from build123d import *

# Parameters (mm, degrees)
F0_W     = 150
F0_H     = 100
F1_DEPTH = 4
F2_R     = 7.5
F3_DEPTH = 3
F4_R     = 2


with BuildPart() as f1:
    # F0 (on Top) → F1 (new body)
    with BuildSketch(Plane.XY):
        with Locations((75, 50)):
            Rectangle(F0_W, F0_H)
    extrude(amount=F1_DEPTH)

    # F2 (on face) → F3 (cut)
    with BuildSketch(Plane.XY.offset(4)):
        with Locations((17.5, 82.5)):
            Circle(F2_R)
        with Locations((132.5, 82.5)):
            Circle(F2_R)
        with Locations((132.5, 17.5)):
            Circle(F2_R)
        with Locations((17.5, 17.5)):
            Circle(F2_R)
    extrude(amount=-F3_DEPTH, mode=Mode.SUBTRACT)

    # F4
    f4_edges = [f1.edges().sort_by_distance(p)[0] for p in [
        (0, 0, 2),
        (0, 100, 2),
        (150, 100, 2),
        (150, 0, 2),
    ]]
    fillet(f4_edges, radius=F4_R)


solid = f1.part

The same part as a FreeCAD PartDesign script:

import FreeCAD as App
import Part
import Sketcher
from FreeCAD import Vector
Q = App.Units.Quantity


def edges_at(feature, points):
    """Names of the edges that pass closest to the given points."""
    edges = feature.Shape.Edges
    near = lambda p: min(range(len(edges)), key=lambda i: edges[i].distToShape(Part.Vertex(*p))[0])
    return sorted({f"Edge{near(p) + 1}" for p in points})


def add_polygon(sketch, points):
    """Adds a closed chain of lines whose ends are joined by coincident constraints."""
    first, n = sketch.GeometryCount, len(points)
    for a, b in zip(points, points[1:] + points[:1]):
        sketch.addGeometry(Part.LineSegment(App.Vector(*a, 0), App.Vector(*b, 0)), False)
    for i in range(n):
        sketch.addConstraint(Sketcher.Constraint("Coincident", first + i, 2, first + (i + 1) % n, 1))

doc = App.newDocument("Part")
body = doc.addObject("PartDesign::Body", "Body")

# Sketch on XY plane
sketch1 = doc.addObject("Sketcher::SketchObject", "Sketch")
body.addObject(sketch1)
sketch1.AttachmentSupport = (doc.XY_Plane, [""])
sketch1.MapMode = "FlatFace"
add_polygon(sketch1, [(0, 100), (0, 0), (150, 0), (150, 100)])  # lines 0-3
sketch1.addConstraint(Sketcher.Constraint("Vertical", 0))
sketch1.addConstraint(Sketcher.Constraint("Horizontal", 1))
sketch1.addConstraint(Sketcher.Constraint("Vertical", 2))
sketch1.addConstraint(Sketcher.Constraint("Horizontal", 3))
sketch1.addConstraint(Sketcher.Constraint("Coincident", 0, 2, -1, 1))
sketch1.addConstraint(Sketcher.Constraint("DistanceX", 1, 1, 1, 2, Q("150 mm")))
sketch1.addConstraint(Sketcher.Constraint("DistanceY", 0, 2, 0, 1, Q("100 mm")))
pad1 = doc.addObject("PartDesign::Pad", "Pad")
body.addObject(pad1)
pad1.Profile = sketch1
pad1.Length = 4

# Sketch on XY plane
sketch2 = doc.addObject("Sketcher::SketchObject", "Sketch001")
body.addObject(sketch2)
sketch2.AttachmentSupport = (doc.XY_Plane, [""])
sketch2.MapMode = "FlatFace"
sketch2.AttachmentOffset = App.Placement(Vector(0, 0, 4), App.Rotation())
sketch2.addGeometry(Part.Circle(Vector(17.5, 82.5, 0), Vector(0, 0, 1), 7.5), False)
sketch2.addGeometry(Part.Circle(Vector(132.5, 82.5, 0), Vector(0, 0, 1), 7.5), False)
sketch2.addGeometry(Part.Circle(Vector(132.5, 17.5, 0), Vector(0, 0, 1), 7.5), False)
sketch2.addGeometry(Part.Circle(Vector(17.5, 17.5, 0), Vector(0, 0, 1), 7.5), False)
sketch2.addConstraint(Sketcher.Constraint("Equal", 0, 1))
sketch2.addConstraint(Sketcher.Constraint("Equal", 1, 2))
sketch2.addConstraint(Sketcher.Constraint("Equal", 2, 3))
sketch2.addConstraint(Sketcher.Constraint("Horizontal", 0, 3, 1, 3))
sketch2.addConstraint(Sketcher.Constraint("Horizontal", 2, 3, 3, 3))
sketch2.addConstraint(Sketcher.Constraint("Vertical", 1, 3, 2, 3))
sketch2.addConstraint(Sketcher.Constraint("Vertical", 0, 3, 3, 3))
sketch2.addConstraint(Sketcher.Constraint("Diameter", 0, Q("15 mm")))
sketch2.addConstraint(Sketcher.Constraint("DistanceX", 0, 3, 1, 3, Q("115 mm")))
sketch2.addConstraint(Sketcher.Constraint("DistanceY", 2, 3, 1, 3, Q("65 mm")))
sketch2.addConstraint(Sketcher.Constraint("DistanceX", -1, 1, 0, 3, Q("17.5 mm")))
sketch2.addConstraint(Sketcher.Constraint("DistanceY", -1, 1, 0, 3, Q("82.5 mm")))
pocket1 = doc.addObject("PartDesign::Pocket", "Pocket")
body.addObject(pocket1)
pocket1.Profile = sketch2
pocket1.Length = 3
doc.recompute()

fillet = doc.addObject("PartDesign::Fillet", "Fillet")
body.addObject(fillet)
fillet.Base = (pocket1, edges_at(pocket1, [
    (0, 0, 2),
    (0, 100, 2),
    (150, 100, 2),
    (150, 0, 2),
]))
fillet.Radius = 2

doc.recompute()
